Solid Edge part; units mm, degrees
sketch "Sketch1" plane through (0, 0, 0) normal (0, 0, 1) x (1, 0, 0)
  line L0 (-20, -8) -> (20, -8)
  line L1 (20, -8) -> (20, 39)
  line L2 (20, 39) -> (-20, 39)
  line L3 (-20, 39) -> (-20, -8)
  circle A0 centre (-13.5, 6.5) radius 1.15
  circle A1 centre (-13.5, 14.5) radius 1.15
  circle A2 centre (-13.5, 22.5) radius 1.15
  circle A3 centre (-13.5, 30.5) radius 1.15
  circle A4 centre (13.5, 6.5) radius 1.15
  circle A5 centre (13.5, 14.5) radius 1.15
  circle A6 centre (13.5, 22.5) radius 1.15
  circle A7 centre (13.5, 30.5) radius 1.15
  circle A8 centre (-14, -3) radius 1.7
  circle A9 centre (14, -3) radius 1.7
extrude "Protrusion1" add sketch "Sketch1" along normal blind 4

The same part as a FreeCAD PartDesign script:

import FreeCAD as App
import Part
import Sketcher
from FreeCAD import Vector


def add_polygon(sketch, points):
    """Adds a closed chain of lines whose ends are joined by coincident constraints."""
    first, n = sketch.GeometryCount, len(points)
    for a, b in zip(points, points[1:] + points[:1]):
        sketch.addGeometry(Part.LineSegment(App.Vector(*a, 0), App.Vector(*b, 0)), False)
    for i in range(n):
        sketch.addConstraint(Sketcher.Constraint("Coincident", first + i, 2, first + (i + 1) % n, 1))

doc = App.newDocument("Part")
body = doc.addObject("PartDesign::Body", "Body")

# Sketch on XY plane
sketch1 = body.newObject("Sketcher::SketchObject", "Sketch")
sketch1.AttachmentSupport = (doc.getObject("XY_Plane"), [""])
sketch1.MapMode = "FlatFace"
add_polygon(sketch1, [(-20, 39), (-20, -8), (20, -8), (20, 39)])  # lines 0-3
sketch1.addGeometry(Part.Circle(Vector(-14, -3, 0), Vector(0, 0, 1), 1.7), False)  # 4
sketch1.addGeometry(Part.Circle(Vector(-13.5, 6.5, 0), Vector(0, 0, 1), 1.1), False)  # 5
sketch1.addGeometry(Part.Circle(Vector(-13.5, 14.5, 0), Vector(0, 0, 1), 1.1), False)  # 6
sketch1.addGeometry(Part.Circle(Vector(14, -3, 0), Vector(0, 0, 1), 1.7), False)  # 7
sketch1.addGeometry(Part.Circle(Vector(13.5, 6.5, 0), Vector(0, 0, 1), 1.1), False)  # 8
sketch1.addGeometry(Part.Circle(Vector(13.5, 14.5, 0), Vector(0, 0, 1), 1.1), False)  # 9
sketch1.addGeometry(Part.Circle(Vector(-13.5, 22.5, 0), Vector(0, 0, 1), 1.1), False)  # 10
sketch1.addGeometry(Part.Circle(Vector(-13.5, 30.5, 0), Vector(0, 0, 1), 1.1), False)  # 11
sketch1.addGeometry(Part.Circle(Vector(13.5, 22.5, 0), Vector(0, 0, 1), 1.1), False)  # 12
sketch1.addGeometry(Part.Circle(Vector(13.5, 30.5, 0), Vector(0, 0, 1), 1.1), False)  # 13
sketch1.addConstraint([
    Sketcher.Constraint("Vertical", 0),
    Sketcher.Constraint("Horizontal", 1),
    Sketcher.Constraint("Vertical", 2),
    Sketcher.Constraint("Horizontal", 3),
    Sketcher.Constraint("Equal", 5, 6),
    Sketcher.Constraint("Equal", 4, 7),
    Sketcher.Constraint("Equal", 6, 8),
    Sketcher.Constraint("Equal", 8, 9),
    Sketcher.Constraint("Equal", 9, 10),
    Sketcher.Constraint("Equal", 10, 11),
    Sketcher.Constraint("Equal", 11, 12),
    Sketcher.Constraint("Equal", 12, 13),
    Sketcher.Constraint("Symmetric", 4, 3, 7, 3, -2),
    Sketcher.Constraint("Symmetric", 5, 3, 8, 3, -2),
    Sketcher.Constraint("Symmetric", 6, 3, 9, 3, -2),
    Sketcher.Constraint("Symmetric", 10, 3, 12, 3, -2),
    Sketcher.Constraint("Symmetric", 11, 3, 13, 3, -2),
    Sketcher.Constraint("Vertical", 5, 3, 6, 3),
    Sketcher.Constraint("Vertical", 6, 3, 10, 3),
    Sketcher.Constraint("Vertical", 10, 3, 11, 3),
    Sketcher.Constraint("Diameter", 4, 3.4),
    Sketcher.Constraint("Diameter", 5, 2.3),
    Sketcher.Constraint("DistanceX", 1, 1, 1, 2, 40.0),
    Sketcher.Constraint("DistanceY", 0, 2, 0, 1, 47.0),
    Sketcher.Constraint("DistanceX", 4, 3, -1, 1, 14.0),
    Sketcher.Constraint("DistanceY", 4, 3, -1, 1, 3.0),
    Sketcher.Constraint("DistanceX", 0, 2, -1, 1, 20.0),
    Sketcher.Constraint("DistanceY", 0, 2, -1, 1, 8.0),
    Sketcher.Constraint("DistanceY", 5, 3, 6, 3, 8.0),
    Sketcher.Constraint("DistanceX", 5, 3, 8, 3, 27.0),
    Sketcher.Constraint("DistanceY", 6, 3, 10, 3, 8.0),
    Sketcher.Constraint("DistanceY", 10, 3, 11, 3, 8.0),
    Sketcher.Constraint("DistanceY", -1, 1, 5, 3, 6.5),
])
pad1 = body.newObject("PartDesign::Pad", "Pad")
pad1.Profile = sketch1
pad1.Length = 4

doc.recompute()
